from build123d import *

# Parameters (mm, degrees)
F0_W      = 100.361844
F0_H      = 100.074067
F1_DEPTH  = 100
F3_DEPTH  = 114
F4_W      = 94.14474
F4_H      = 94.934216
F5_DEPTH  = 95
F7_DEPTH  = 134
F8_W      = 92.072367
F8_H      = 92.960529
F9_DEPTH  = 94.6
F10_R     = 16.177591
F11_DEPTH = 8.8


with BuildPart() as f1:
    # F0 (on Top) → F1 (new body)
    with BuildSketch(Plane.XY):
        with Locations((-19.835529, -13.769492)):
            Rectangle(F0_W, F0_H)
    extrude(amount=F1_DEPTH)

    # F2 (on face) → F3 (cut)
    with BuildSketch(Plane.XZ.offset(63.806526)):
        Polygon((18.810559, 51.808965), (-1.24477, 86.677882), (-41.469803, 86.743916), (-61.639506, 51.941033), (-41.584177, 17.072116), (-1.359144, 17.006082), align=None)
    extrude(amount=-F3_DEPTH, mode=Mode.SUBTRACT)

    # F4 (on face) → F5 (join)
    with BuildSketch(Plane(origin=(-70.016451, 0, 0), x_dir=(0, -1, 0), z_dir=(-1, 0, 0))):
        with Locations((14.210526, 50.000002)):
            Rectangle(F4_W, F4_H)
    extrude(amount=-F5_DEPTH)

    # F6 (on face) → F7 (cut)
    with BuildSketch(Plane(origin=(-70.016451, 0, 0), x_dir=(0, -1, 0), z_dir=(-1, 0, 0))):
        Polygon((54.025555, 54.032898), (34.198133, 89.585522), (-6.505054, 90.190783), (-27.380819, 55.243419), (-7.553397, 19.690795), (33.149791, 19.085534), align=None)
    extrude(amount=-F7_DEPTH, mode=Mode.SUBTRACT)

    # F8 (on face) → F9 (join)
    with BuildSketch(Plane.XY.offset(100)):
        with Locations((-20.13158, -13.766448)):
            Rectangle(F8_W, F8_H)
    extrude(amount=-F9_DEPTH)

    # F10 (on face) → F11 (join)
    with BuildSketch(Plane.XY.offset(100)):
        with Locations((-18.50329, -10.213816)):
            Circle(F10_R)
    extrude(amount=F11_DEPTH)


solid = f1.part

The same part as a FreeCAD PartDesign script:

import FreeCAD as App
import Part
import Sketcher


def add_polygon(sketch, points):
    """Adds a closed chain of lines whose ends are joined by coincident constraints."""
    first, n = sketch.GeometryCount, len(points)
    for a, b in zip(points, points[1:] + points[:1]):
        sketch.addGeometry(Part.LineSegment(App.Vector(*a, 0), App.Vector(*b, 0)), False)
    for i in range(n):
        sketch.addConstraint(Sketcher.Constraint("Coincident", first + i, 2, first + (i + 1) % n, 1))

doc = App.newDocument("Part")
body = doc.addObject("PartDesign::Body", "Body")

sketch1 = doc.addObject("Sketcher::SketchObject", "Sketch")
body.addObject(sketch1)
sketch1.AttachmentSupport = (doc.XY_Plane, [""])
sketch1.MapMode = "FlatFace"
add_polygon(sketch1, [(-70, 36), (-70, -64), (30, -64), (30, 36)])
sketch1.addConstraint(Sketcher.Constraint("Vertical", 0))
sketch1.addConstraint(Sketcher.Constraint("Horizontal", 1))
sketch1.addConstraint(Sketcher.Constraint("Vertical", 2))
sketch1.addConstraint(Sketcher.Constraint("Horizontal", 3))
sketch1.addConstraint(Sketcher.Constraint("DistanceX", 1, 1, 1, 2, 100.361844))
sketch1.addConstraint(Sketcher.Constraint("DistanceY", 0, 2, 0, 1, 100.074067))
sketch1.addConstraint(Sketcher.Constraint("DistanceX", 0, 2, -1, 1, 70.016451))
sketch1.addConstraint(Sketcher.Constraint("DistanceY", -1, 1, 2, 2, 36.267542))
pad1 = doc.addObject("PartDesign::Pad", "Pad")
body.addObject(pad1)
pad1.Profile = sketch1
pad1.Length = 100

sketch2 = doc.addObject("Sketcher::SketchObject", "Sketch001")
body.addObject(sketch2)
sketch2.AttachmentSupport = (doc.XZ_Plane, [""])
sketch2.MapMode = "FlatFace"
sketch2.AttachmentOffset = App.Placement(App.Vector(0, 0, 63.806526), App.Rotation())
add_polygon(sketch2, [(19, 52), (-1, 87), (-41, 87), (-62, 52), (-42, 17), (-1, 17)])
sketch2.addConstraint(Sketcher.Constraint("Parallel", 0, 3))
sketch2.addConstraint(Sketcher.Constraint("Parallel", 1, 4))
sketch2.addConstraint(Sketcher.Constraint("Parallel", 2, 5))
sketch2.addConstraint(Sketcher.Constraint("Equal", 0, 1))
sketch2.addConstraint(Sketcher.Constraint("Equal", 1, 2))
sketch2.addConstraint(Sketcher.Constraint("Equal", 2, 3))
sketch2.addConstraint(Sketcher.Constraint("DistanceY", 3, 2, 1, 2, 69.6718))
sketch2.addConstraint(Sketcher.Constraint("DistanceX", 0, 2, -1, 1, 1.24477))
sketch2.addConstraint(Sketcher.Constraint("DistanceY", -1, 1, 0, 2, 86.677882))
sketch2.addConstraint(Sketcher.Constraint("DistanceX", -1, 1, 5, 2, 18.810559))
sketch2.addConstraint(Sketcher.Constraint("DistanceY", 2, 2, 0, 2, 34.736849))
sketch2.addConstraint(Sketcher.Constraint("DistanceX", 2, 2, 4, 2, 60.280362))
pocket1 = doc.addObject("PartDesign::Pocket", "Pocket")
body.addObject(pocket1)
pocket1.Profile = sketch2
pocket1.Length = 114

sketch3 = doc.addObject("Sketcher::SketchObject", "Sketch002")
body.addObject(sketch3)
sketch3.AttachmentSupport = (doc.YZ_Plane, [""])
sketch3.MapMode = "FlatFace"
sketch3.AttachmentOffset = App.Placement(App.Vector(0, 0, -70.016451), App.Rotation())
add_polygon(sketch3, [(33, 97), (33, 3), (-61, 3), (-61, 97)])
sketch3.addConstraint(Sketcher.Constraint("Vertical", 0))
sketch3.addConstraint(Sketcher.Constraint("Horizontal", 1))
sketch3.addConstraint(Sketcher.Constraint("Vertical", 2))
sketch3.addConstraint(Sketcher.Constraint("Horizontal", 3))
sketch3.addConstraint(Sketcher.Constraint("DistanceX", 1, 2, 1, 1, 94.14474))
sketch3.addConstraint(Sketcher.Constraint("DistanceY", 0, 2, 0, 1, 94.934216))
sketch3.addConstraint(Sketcher.Constraint("DistanceY", -1, 1, 2, 2, 97.46711))
sketch3.addConstraint(Sketcher.Constraint("DistanceX", -1, 1, 0, 2, 32.861844))
pad2 = doc.addObject("PartDesign::Pad", "Pad001")
body.addObject(pad2)
pad2.Profile = sketch3
pad2.Length = 95

sketch4 = doc.addObject("Sketcher::SketchObject", "Sketch003")
body.addObject(sketch4)
sketch4.AttachmentSupport = (doc.YZ_Plane, [""])
sketch4.MapMode = "FlatFace"
sketch4.AttachmentOffset = App.Placement(App.Vector(0, 0, -70.016451), App.Rotation())
add_polygon(sketch4, [(-54, 54), (-34, 90), (7, 90), (27, 55), (8, 20), (-33, 19)])
sketch4.addConstraint(Sketcher.Constraint("Parallel", 0, 3))
sketch4.addConstraint(Sketcher.Constraint("Parallel", 1, 4))
sketch4.addConstraint(Sketcher.Constraint("Parallel", 2, 5))
sketch4.addConstraint(Sketcher.Constraint("Equal", 0, 1))
sketch4.addConstraint(Sketcher.Constraint("Equal", 1, 2))
sketch4.addConstraint(Sketcher.Constraint("Equal", 2, 3))
sketch4.addConstraint(Sketcher.Constraint("DistanceY", -1, 1, 5, 2, 54.032898))
sketch4.addConstraint(Sketcher.Constraint("DistanceY", -1, 1, 0, 2, 89.585522))
sketch4.addConstraint(Sketcher.Constraint("DistanceX", -1, 1, 2, 2, 27.380819))
sketch4.addConstraint(Sketcher.Constraint("DistanceY", -1, 1, 2, 2, 55.243419))
sketch4.addConstraint(Sketcher.Constraint("DistanceX", 4, 2, -1, 1, 33.149791))
sketch4.addConstraint(Sketcher.Constraint("DistanceY", 0, 2, 1, 2, 0.605261))
pocket2 = doc.addObject("PartDesign::Pocket", "Pocket001")
body.addObject(pocket2)
pocket2.Profile = sketch4
pocket2.Length = 134
pocket2.Reversed = True

sketch5 = doc.addObject("Sketcher::SketchObject", "Sketch004")
body.addObject(sketch5)
sketch5.AttachmentSupport = (doc.XY_Plane, [""])
sketch5.MapMode = "FlatFace"
sketch5.AttachmentOffset = App.Placement(App.Vector(0, 0, 100), App.Rotation())
add_polygon(sketch5, [(-66, 33), (-66, -60), (26, -60), (26, 33)])
sketch5.addConstraint(Sketcher.Constraint("Vertical", 0))
sketch5.addConstraint(Sketcher.Constraint("Horizontal", 1))
sketch5.addConstraint(Sketcher.Constraint("Vertical", 2))
sketch5.addConstraint(Sketcher.Constraint("Horizontal", 3))
sketch5.addConstraint(Sketcher.Constraint("DistanceY", 0, 2, 0, 1, 92.960529))
sketch5.addConstraint(Sketcher.Constraint("DistanceX", 1, 1, 1, 2, 92.072367))
sketch5.addConstraint(Sketcher.Constraint("DistanceX", 0, 2, -1, 1, 66.167764))
sketch5.addConstraint(Sketcher.Constraint("DistanceY", 0, 2, -1, 1, 60.246713))
pad3 = doc.addObject("PartDesign::Pad", "Pad002")
body.addObject(pad3)
pad3.Profile = sketch5
pad3.Length = 94.6
pad3.Reversed = True

sketch6 = doc.addObject("Sketcher::SketchObject", "Sketch005")
body.addObject(sketch6)
sketch6.AttachmentSupport = (doc.XY_Plane, [""])
sketch6.MapMode = "FlatFace"
sketch6.AttachmentOffset = App.Placement(App.Vector(0, 0, 100), App.Rotation())
sketch6.addGeometry(Part.Circle(App.Vector(-19, -10, 0), App.Vector(0, 0, 1), 16), False)
sketch6.addConstraint(Sketcher.Constraint("Diameter", 0, 32.355182))
sketch6.addConstraint(Sketcher.Constraint("DistanceX", 0, 3, -1, 1, 18.50329))
sketch6.addConstraint(Sketcher.Constraint("DistanceY", 0, 3, -1, 1, 10.213816))
pad4 = doc.addObject("PartDesign::Pad", "Pad003")
body.addObject(pad4)
pad4.Profile = sketch6
pad4.Length = 8.8

doc.recompute()
